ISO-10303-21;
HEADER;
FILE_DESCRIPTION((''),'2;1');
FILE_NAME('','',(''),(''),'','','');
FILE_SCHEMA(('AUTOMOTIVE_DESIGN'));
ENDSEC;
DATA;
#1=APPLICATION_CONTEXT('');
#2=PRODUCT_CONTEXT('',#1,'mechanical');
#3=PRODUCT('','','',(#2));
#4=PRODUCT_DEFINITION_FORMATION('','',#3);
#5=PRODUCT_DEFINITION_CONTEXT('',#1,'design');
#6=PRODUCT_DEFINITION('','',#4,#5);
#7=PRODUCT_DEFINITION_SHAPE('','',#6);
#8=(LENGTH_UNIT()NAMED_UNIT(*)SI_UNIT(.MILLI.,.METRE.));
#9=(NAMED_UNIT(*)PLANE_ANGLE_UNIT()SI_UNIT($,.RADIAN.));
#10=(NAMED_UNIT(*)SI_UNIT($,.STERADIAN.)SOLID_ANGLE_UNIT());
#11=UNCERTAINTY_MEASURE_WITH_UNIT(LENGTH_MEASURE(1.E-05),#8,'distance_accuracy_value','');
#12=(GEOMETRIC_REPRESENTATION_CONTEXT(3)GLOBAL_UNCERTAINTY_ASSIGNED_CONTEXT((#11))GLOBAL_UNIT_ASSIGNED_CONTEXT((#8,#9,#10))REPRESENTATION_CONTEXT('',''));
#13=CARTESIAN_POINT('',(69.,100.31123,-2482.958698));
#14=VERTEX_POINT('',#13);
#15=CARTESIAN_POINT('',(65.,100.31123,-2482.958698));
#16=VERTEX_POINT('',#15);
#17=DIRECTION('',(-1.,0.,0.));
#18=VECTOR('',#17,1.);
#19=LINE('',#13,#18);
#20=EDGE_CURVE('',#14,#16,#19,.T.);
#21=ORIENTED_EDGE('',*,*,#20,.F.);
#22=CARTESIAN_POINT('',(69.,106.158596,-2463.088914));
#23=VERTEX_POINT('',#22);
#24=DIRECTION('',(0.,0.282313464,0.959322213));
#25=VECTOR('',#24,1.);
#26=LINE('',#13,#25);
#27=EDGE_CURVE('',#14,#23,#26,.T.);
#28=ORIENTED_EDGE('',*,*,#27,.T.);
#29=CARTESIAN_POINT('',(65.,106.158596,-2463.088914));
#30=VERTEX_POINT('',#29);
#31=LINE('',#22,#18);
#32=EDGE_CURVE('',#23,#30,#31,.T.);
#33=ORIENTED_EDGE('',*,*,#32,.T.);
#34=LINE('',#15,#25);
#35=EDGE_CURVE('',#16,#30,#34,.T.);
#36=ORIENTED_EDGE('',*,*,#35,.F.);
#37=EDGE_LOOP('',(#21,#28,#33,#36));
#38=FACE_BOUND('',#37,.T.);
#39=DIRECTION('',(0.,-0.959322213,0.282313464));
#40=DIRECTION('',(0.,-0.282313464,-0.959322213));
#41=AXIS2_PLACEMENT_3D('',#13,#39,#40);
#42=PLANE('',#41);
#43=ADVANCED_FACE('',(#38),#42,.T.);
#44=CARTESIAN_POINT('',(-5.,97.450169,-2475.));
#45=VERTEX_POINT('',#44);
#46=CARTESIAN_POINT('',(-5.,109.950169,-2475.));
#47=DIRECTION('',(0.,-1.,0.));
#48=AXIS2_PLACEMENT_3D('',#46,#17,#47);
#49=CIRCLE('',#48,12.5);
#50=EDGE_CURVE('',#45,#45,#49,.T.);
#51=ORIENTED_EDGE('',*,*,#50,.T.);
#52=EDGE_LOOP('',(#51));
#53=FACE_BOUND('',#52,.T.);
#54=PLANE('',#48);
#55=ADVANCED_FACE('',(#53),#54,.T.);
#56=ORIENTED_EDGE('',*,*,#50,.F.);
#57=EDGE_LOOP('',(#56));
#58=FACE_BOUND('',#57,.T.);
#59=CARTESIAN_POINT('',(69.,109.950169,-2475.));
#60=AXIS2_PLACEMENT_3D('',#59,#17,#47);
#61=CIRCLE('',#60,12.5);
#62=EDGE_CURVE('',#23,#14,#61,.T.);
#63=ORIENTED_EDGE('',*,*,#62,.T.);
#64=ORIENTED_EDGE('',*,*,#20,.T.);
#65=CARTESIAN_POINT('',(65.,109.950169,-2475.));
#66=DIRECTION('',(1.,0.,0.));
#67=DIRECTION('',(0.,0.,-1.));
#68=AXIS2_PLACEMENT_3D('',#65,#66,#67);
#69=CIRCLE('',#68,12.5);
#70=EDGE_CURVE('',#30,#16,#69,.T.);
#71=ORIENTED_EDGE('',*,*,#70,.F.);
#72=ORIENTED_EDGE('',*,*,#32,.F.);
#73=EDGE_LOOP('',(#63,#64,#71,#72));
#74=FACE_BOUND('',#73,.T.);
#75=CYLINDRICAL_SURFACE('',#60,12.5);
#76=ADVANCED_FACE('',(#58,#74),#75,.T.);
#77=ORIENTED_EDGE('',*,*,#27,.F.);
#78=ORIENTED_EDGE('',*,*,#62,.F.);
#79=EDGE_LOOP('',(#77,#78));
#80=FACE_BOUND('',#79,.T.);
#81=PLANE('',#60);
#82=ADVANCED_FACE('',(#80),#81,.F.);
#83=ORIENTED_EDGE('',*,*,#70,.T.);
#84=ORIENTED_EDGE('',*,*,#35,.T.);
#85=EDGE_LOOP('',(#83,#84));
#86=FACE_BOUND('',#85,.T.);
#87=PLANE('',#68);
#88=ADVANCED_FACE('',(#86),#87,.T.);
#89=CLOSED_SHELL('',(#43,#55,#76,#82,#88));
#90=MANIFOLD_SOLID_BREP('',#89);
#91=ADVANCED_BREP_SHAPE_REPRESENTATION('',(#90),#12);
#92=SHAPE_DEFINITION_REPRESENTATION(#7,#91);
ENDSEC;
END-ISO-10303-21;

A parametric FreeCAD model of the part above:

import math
import FreeCAD as App
import Part
import Sketcher

V = App.Vector

doc = App.newDocument("Part")
params = doc.addObject("Spreadsheet::Sheet", "Params")
for row, (alias, value) in enumerate([
    ("sketch1_diameter", "25 mm"),
    ("pad1_length", "74 mm"),
    ("sketch2_radius", "12.5 mm"),
    ("pocket1_length", "4 mm"),
], start=1):
    params.set(f"A{row}", alias)
    params.set(f"B{row}", "=" + value)
    params.setAlias(f"B{row}", alias)

body = doc.addObject("PartDesign::Body", "Body")

# Sketch on YZ plane
sketch1 = doc.addObject("Sketcher::SketchObject", "Sketch")
body.addObject(sketch1)
sketch1.AttachmentSupport = (doc.YZ_Plane, [""])
sketch1.MapMode = "FlatFace"
sketch1.AttachmentOffset = App.Placement(V(0, 0, -5), App.Rotation())
sketch1.addGeometry(Part.Circle(V(110, -2475, 0), V(0, 0, 1), 12), False)
sketch1.addConstraint(Sketcher.Constraint("Diameter", 0, 25.0))
sketch1.addConstraint(Sketcher.Constraint("DistanceY", 0, 3, -1, 1, 2475.0))
sketch1.addConstraint(Sketcher.Constraint("DistanceX", -1, 1, 0, 3, 109.950169))
sketch1.setExpression("Constraints[0]", "Params.sketch1_diameter")
pad1 = doc.addObject("PartDesign::Pad", "Pad")
body.addObject(pad1)
pad1.Profile = sketch1
pad1.setExpression("Length", "Params.pad1_length")

# Sketch on YZ plane
sketch2 = doc.addObject("Sketcher::SketchObject", "Sketch001")
body.addObject(sketch2)
sketch2.AttachmentSupport = (doc.YZ_Plane, [""])
sketch2.MapMode = "FlatFace"
sketch2.AttachmentOffset = App.Placement(V(0, 0, 65), App.Rotation())
sketch2.addGeometry(Part.LineSegment(V(100, -2483, 0), V(106, -2463, 0)), False)
sketch2.addGeometry(Part.ArcOfCircle(Part.Circle(V(110, -2475, 0), V(0, 0, 1), 12), math.radians(108), math.radians(220)), False)
sketch2.addConstraint(Sketcher.Constraint("Coincident", 0, 1, 1, 2))
sketch2.addConstraint(Sketcher.Constraint("Coincident", 1, 1, 0, 2))
sketch2.addConstraint(Sketcher.Constraint("Radius", 1, 12.5))
sketch2.addConstraint(Sketcher.Constraint("DistanceY", 1, 3, -1, 1, 2475.0))
sketch2.addConstraint(Sketcher.Constraint("DistanceX", -1, 1, 1, 3, 109.950169))
sketch2.addConstraint(Sketcher.Constraint("DistanceX", -1, 1, 0, 1, 100.31123))
sketch2.addConstraint(Sketcher.Constraint("Distance", 0, 20.712315))
sketch2.setExpression("Constraints[2]", "Params.sketch2_radius")
pocket1 = doc.addObject("PartDesign::Pocket", "Pocket")
body.addObject(pocket1)
pocket1.Profile = sketch2
pocket1.setExpression("Length", "Params.pocket1_length")
pocket1.Reversed = True

doc.recompute()
